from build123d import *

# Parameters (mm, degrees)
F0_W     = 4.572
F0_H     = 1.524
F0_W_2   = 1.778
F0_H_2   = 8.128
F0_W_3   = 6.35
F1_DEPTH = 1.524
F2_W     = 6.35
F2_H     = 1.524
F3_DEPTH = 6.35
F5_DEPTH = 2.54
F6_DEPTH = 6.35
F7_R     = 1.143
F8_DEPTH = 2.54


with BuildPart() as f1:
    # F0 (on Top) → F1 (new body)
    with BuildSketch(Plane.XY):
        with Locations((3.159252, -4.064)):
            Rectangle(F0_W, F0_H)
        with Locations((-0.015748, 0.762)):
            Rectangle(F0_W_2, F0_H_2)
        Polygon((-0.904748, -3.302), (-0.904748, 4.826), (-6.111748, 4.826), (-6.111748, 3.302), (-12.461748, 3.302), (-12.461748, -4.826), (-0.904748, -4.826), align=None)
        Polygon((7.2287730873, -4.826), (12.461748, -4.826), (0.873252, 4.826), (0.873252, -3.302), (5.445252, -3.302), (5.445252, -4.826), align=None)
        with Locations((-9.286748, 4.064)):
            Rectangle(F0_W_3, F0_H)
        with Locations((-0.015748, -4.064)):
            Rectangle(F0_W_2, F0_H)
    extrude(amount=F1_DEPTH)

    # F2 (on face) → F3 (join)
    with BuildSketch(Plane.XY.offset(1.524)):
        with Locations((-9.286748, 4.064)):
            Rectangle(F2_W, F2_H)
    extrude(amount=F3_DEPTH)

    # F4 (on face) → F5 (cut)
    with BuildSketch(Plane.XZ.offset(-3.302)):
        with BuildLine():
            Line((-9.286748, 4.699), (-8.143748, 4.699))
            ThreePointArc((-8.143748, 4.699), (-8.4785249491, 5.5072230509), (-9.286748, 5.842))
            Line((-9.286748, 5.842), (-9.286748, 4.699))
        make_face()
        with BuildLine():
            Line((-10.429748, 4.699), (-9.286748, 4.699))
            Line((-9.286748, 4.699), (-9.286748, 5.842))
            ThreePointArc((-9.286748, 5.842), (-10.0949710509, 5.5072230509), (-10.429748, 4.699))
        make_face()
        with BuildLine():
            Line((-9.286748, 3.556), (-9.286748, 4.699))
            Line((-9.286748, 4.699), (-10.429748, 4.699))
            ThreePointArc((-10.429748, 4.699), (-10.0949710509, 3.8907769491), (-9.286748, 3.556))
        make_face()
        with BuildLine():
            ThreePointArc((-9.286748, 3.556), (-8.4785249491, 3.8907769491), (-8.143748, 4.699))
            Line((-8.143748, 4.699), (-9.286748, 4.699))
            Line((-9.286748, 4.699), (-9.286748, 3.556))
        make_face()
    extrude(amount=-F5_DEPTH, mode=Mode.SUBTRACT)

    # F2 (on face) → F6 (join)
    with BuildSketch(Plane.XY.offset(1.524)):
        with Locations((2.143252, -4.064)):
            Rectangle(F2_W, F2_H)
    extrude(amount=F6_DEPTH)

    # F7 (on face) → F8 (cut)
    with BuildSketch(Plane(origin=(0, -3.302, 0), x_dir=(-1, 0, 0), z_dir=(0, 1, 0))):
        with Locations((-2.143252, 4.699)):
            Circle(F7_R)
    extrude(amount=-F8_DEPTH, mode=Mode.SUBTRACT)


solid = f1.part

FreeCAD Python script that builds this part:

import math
import FreeCAD as App
import Part
import Sketcher
from FreeCAD import Vector
Q = App.Units.Quantity


def add_polygon(sketch, points):
    """Adds a closed chain of lines whose ends are joined by coincident constraints."""
    first, n = sketch.GeometryCount, len(points)
    for a, b in zip(points, points[1:] + points[:1]):
        sketch.addGeometry(Part.LineSegment(App.Vector(*a, 0), App.Vector(*b, 0)), False)
    for i in range(n):
        sketch.addConstraint(Sketcher.Constraint("Coincident", first + i, 2, first + (i + 1) % n, 1))

doc = App.newDocument("Part")
params = doc.addObject("Spreadsheet::Sheet", "Params")
for row, (alias, value) in enumerate([
    ("sketch1_height", "0.38 in"),
    ("sketch1_width", "0.525 in"),
    ("pad1_length", "0.06 in"),
    ("sketch2_width", "0.25 in"),
    ("sketch2_height", "0.06 in"),
    ("pad2_length", "0.25 in"),
    ("sketch3_radius", "0.045 in"),
    ("pocket1_length", "0.1 in"),
    ("sketch4_width", "0.25 in"),
    ("sketch4_height", "0.06 in"),
    ("pad3_length", "0.25 in"),
    ("sketch5_diameter", "0.09 in"),
    ("pocket2_length", "0.1 in"),
], start=1):
    params.set(f"A{row}", alias)
    params.set(f"B{row}", "=" + value)
    params.setAlias(f"B{row}", alias)

body = doc.addObject("PartDesign::Body", "Body")

# Sketch on XY plane
sketch1 = doc.addObject("Sketcher::SketchObject", "Sketch")
body.addObject(sketch1)
sketch1.AttachmentSupport = (doc.XY_Plane, [""])
sketch1.MapMode = "FlatFace"
add_polygon(sketch1, [(12, -5), (1, 5), (-12, 5), (-12, -5)])  # lines 0-3
sketch1.addConstraint([
    Sketcher.Constraint("Horizontal", 1),
    Sketcher.Constraint("Vertical", 2),
    Sketcher.Constraint("Horizontal", 3),
    Sketcher.Constraint("Symmetric", 1, 2, 3, 2, -1, 1),
    Sketcher.Constraint("DistanceY", 2, 2, 2, 1, Q("0.38 in")),
    Sketcher.Constraint("DistanceX", 1, 2, 1, 1, Q("0.525 in")),
    Sketcher.Constraint("Distance", 0, Q("15.08159 mm")),
])
sketch1.setExpression("Constraints[8]", "Params.sketch1_height")
sketch1.setExpression("Constraints[9]", "Params.sketch1_width")
pad1 = doc.addObject("PartDesign::Pad", "Pad")
body.addObject(pad1)
pad1.Profile = sketch1
pad1.setExpression("Length", "Params.pad1_length")

# Sketch on XY plane
sketch2 = doc.addObject("Sketcher::SketchObject", "Sketch001")
body.addObject(sketch2)
sketch2.AttachmentSupport = (doc.XY_Plane, [""])
sketch2.MapMode = "FlatFace"
sketch2.AttachmentOffset = App.Placement(Vector(0, 0, 0.06 * 25.4), App.Rotation())
add_polygon(sketch2, [(-12.5, 4.8), (-12.5, 3.3), (-6.1, 3.3), (-6.1, 4.8)])  # lines 0-3
sketch2.addConstraint([
    Sketcher.Constraint("Vertical", 0),
    Sketcher.Constraint("Horizontal", 1),
    Sketcher.Constraint("Vertical", 2),
    Sketcher.Constraint("Horizontal", 3),
    Sketcher.Constraint("DistanceX", 1, 1, 1, 2, Q("0.25 in")),
    Sketcher.Constraint("DistanceY", 0, 2, 0, 1, Q("0.06 in")),
    Sketcher.Constraint("DistanceY", -1, 1, 0, 2, Q("0.13 in")),
    Sketcher.Constraint("DistanceX", 1, 2, -1, 1, Q("6.111748 mm")),
])
sketch2.setExpression("Constraints[8]", "Params.sketch2_width")
sketch2.setExpression("Constraints[9]", "Params.sketch2_height")
pad2 = doc.addObject("PartDesign::Pad", "Pad001")
body.addObject(pad2)
pad2.Profile = sketch2
pad2.setExpression("Length", "Params.pad2_length")

# Sketch on XZ plane
sketch3 = doc.addObject("Sketcher::SketchObject", "Sketch002")
body.addObject(sketch3)
sketch3.AttachmentSupport = (doc.XZ_Plane, [""])
sketch3.MapMode = "FlatFace"
sketch3.AttachmentOffset = App.Placement(Vector(0, 0, -0.13 * 25.4), App.Rotation())
sketch3.addGeometry([
    Part.ArcOfCircle(Part.Circle(Vector(-9.3, 4.7, 0), Vector(0, 0, 1), 1.1), math.radians(0), math.radians(90)),
    Part.ArcOfCircle(Part.Circle(Vector(-9.3, 4.7, 0), Vector(0, 0, 1), 1.1), math.radians(90), math.radians(180)),
    Part.ArcOfCircle(Part.Circle(Vector(-9.3, 4.7, 0), Vector(0, 0, 1), 1.1), math.radians(180), math.radians(270)),
    Part.ArcOfCircle(Part.Circle(Vector(-9.3, 4.7, 0), Vector(0, 0, 1), 1.1), math.radians(-90), math.radians(0)),
], False)
sketch3.addConstraint([
    Sketcher.Constraint("Tangent", 0, 2, 1, 1),
    Sketcher.Constraint("Tangent", 1, 2, 2, 1),
    Sketcher.Constraint("Tangent", 2, 2, 3, 1),
    Sketcher.Constraint("Tangent", 3, 2, 0, 1),
    Sketcher.Constraint("Equal", 0, 1),
    Sketcher.Constraint("Horizontal", 3, 3, 1, 2),
    Sketcher.Constraint("Horizontal", 1, 2, 3, 2),
    Sketcher.Constraint("Vertical", 3, 3, 0, 2),
    Sketcher.Constraint("Vertical", 0, 2, 2, 2),
    Sketcher.Constraint("Radius", 0, Q("0.045 in")),
    Sketcher.Constraint("DistanceY", -1, 1, 0, 2, Q("0.23 in")),
    Sketcher.Constraint("DistanceX", 0, 3, -1, 1, Q("9.286748 mm")),
])
sketch3.setExpression("Constraints[9]", "Params.sketch3_radius")
pocket1 = doc.addObject("PartDesign::Pocket", "Pocket")
body.addObject(pocket1)
pocket1.Profile = sketch3
pocket1.setExpression("Length", "Params.pocket1_length")

# Sketch on XY plane
sketch4 = doc.addObject("Sketcher::SketchObject", "Sketch003")
body.addObject(sketch4)
sketch4.AttachmentSupport = (doc.XY_Plane, [""])
sketch4.MapMode = "FlatFace"
sketch4.AttachmentOffset = App.Placement(Vector(0, 0, 0.06 * 25.4), App.Rotation())
add_polygon(sketch4, [(-1, -3.3), (-1, -4.8), (5.3, -4.8), (5.3, -3.3)])  # lines 0-3
sketch4.addConstraint([
    Sketcher.Constraint("Vertical", 0),
    Sketcher.Constraint("Horizontal", 1),
    Sketcher.Constraint("Vertical", 2),
    Sketcher.Constraint("Horizontal", 3),
    Sketcher.Constraint("DistanceX", 1, 1, 1, 2, Q("0.25 in")),
    Sketcher.Constraint("DistanceY", 0, 2, 0, 1, Q("0.06 in")),
    Sketcher.Constraint("DistanceY", 0, 2, -1, 1, Q("0.19 in")),
    Sketcher.Constraint("DistanceX", 0, 2, -1, 1, Q("1.031748 mm")),
])
sketch4.setExpression("Constraints[8]", "Params.sketch4_width")
sketch4.setExpression("Constraints[9]", "Params.sketch4_height")
pad3 = doc.addObject("PartDesign::Pad", "Pad002")
body.addObject(pad3)
pad3.Profile = sketch4
pad3.setExpression("Length", "Params.pad3_length")

# Sketch on XZ plane
sketch5 = doc.addObject("Sketcher::SketchObject", "Sketch004")
body.addObject(sketch5)
sketch5.AttachmentSupport = (doc.XZ_Plane, [""])
sketch5.MapMode = "FlatFace"
sketch5.AttachmentOffset = App.Placement(Vector(0, 0, 0.13 * 25.4), App.Rotation())
sketch5.addGeometry(Part.Circle(Vector(2.1, 4.7, 0), Vector(0, 0, 1), 1.1), False)
sketch5.addConstraint([
    Sketcher.Constraint("Diameter", 0, Q("0.09 in")),
    Sketcher.Constraint("DistanceY", -1, 1, 0, 3, Q("0.185 in")),
    Sketcher.Constraint("DistanceX", -1, 1, 0, 3, Q("2.143252 mm")),
])
sketch5.setExpression("Constraints[0]", "Params.sketch5_diameter")
pocket2 = doc.addObject("PartDesign::Pocket", "Pocket001")
body.addObject(pocket2)
pocket2.Profile = sketch5
pocket2.setExpression("Length", "Params.pocket2_length")
pocket2.Reversed = True

doc.recompute()
